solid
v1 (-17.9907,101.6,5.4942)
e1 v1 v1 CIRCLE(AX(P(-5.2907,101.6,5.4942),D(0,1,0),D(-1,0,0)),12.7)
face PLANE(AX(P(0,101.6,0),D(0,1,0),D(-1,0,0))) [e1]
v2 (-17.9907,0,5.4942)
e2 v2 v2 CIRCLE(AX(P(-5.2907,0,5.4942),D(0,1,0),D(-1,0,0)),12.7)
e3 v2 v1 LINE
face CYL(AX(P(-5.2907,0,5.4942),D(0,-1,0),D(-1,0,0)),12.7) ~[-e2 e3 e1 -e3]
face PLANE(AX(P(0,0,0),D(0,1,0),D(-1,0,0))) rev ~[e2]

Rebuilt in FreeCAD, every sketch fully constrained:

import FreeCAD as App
import Part
import Sketcher

V = App.Vector
Q = App.Units.Quantity

doc = App.newDocument("Part")
body = doc.addObject("PartDesign::Body", "Body")

# Sketch on XZ plane
sketch1 = body.newObject("Sketcher::SketchObject", "Sketch")
sketch1.AttachmentSupport = (doc.getObject("XZ_Plane"), [""])
sketch1.MapMode = "FlatFace"
sketch1.addGeometry(Part.Circle(V(-5, 5, 0), V(0, 0, 1), 13), False)
sketch1.addConstraint([
    Sketcher.Constraint("Diameter", 0, Q("1 in")),
    Sketcher.Constraint("DistanceX", 0, 3, -1, 1, Q("0.2083 in")),
    Sketcher.Constraint("DistanceY", -1, 1, 0, 3, Q("0.2163 in")),
])
pad1 = body.newObject("PartDesign::Pad", "Pad")
pad1.Profile = sketch1
pad1.Length = Q("4 in")
pad1.Reversed = True

doc.recompute()
